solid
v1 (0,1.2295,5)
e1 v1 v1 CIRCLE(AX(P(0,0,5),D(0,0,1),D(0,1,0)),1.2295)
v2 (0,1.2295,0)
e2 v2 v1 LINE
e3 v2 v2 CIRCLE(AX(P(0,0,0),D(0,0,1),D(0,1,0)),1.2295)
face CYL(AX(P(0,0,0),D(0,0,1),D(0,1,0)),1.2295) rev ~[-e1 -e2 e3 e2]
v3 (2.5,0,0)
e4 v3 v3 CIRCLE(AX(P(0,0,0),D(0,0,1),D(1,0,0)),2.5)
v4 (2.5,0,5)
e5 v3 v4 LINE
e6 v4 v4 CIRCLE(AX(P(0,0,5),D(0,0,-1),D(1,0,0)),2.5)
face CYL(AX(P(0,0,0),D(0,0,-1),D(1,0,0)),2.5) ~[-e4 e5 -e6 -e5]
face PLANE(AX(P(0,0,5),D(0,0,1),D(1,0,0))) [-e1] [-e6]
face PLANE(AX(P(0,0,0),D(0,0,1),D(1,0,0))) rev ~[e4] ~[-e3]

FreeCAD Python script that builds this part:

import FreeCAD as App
import Part
import Sketcher

V = App.Vector

doc = App.newDocument("Part")
body = doc.addObject("PartDesign::Body", "Body")

# Sketch on XY plane
sketch1 = body.newObject("Sketcher::SketchObject", "Sketch")
sketch1.AttachmentSupport = (doc.getObject("XY_Plane"), [""])
sketch1.MapMode = "FlatFace"
sketch1.addGeometry(Part.Circle(V(0, 0, 0), V(0, 0, 1), 2.5), False)
sketch1.addConstraint(Sketcher.Constraint("Coincident", 0, 3, -1, 1))
sketch1.addConstraint(Sketcher.Constraint("Diameter", 0, 5.0))
pad1 = body.newObject("PartDesign::Pad", "Pad")
pad1.Profile = sketch1
pad1.Length = 5

# Sketch on XY plane
sketch2 = body.newObject("Sketcher::SketchObject", "Sketch001")
sketch2.AttachmentSupport = (doc.getObject("XY_Plane"), [""])
sketch2.MapMode = "FlatFace"
sketch2.addGeometry(Part.Circle(V(0, 0, 0), V(0, 0, 1), 1.2), False)
sketch2.addConstraint(Sketcher.Constraint("Coincident", 0, 3, -1, 1))
sketch2.addConstraint(Sketcher.Constraint("Diameter", 0, 2.459))
doc.recompute()
hole = body.newObject("PartDesign::Hole", "Hole")
hole.Profile = sketch2
hole.ThreadType = "None"
hole.Diameter = 2.459
hole.DepthType = "ThroughAll"
hole.Reversed = True

doc.recompute()
